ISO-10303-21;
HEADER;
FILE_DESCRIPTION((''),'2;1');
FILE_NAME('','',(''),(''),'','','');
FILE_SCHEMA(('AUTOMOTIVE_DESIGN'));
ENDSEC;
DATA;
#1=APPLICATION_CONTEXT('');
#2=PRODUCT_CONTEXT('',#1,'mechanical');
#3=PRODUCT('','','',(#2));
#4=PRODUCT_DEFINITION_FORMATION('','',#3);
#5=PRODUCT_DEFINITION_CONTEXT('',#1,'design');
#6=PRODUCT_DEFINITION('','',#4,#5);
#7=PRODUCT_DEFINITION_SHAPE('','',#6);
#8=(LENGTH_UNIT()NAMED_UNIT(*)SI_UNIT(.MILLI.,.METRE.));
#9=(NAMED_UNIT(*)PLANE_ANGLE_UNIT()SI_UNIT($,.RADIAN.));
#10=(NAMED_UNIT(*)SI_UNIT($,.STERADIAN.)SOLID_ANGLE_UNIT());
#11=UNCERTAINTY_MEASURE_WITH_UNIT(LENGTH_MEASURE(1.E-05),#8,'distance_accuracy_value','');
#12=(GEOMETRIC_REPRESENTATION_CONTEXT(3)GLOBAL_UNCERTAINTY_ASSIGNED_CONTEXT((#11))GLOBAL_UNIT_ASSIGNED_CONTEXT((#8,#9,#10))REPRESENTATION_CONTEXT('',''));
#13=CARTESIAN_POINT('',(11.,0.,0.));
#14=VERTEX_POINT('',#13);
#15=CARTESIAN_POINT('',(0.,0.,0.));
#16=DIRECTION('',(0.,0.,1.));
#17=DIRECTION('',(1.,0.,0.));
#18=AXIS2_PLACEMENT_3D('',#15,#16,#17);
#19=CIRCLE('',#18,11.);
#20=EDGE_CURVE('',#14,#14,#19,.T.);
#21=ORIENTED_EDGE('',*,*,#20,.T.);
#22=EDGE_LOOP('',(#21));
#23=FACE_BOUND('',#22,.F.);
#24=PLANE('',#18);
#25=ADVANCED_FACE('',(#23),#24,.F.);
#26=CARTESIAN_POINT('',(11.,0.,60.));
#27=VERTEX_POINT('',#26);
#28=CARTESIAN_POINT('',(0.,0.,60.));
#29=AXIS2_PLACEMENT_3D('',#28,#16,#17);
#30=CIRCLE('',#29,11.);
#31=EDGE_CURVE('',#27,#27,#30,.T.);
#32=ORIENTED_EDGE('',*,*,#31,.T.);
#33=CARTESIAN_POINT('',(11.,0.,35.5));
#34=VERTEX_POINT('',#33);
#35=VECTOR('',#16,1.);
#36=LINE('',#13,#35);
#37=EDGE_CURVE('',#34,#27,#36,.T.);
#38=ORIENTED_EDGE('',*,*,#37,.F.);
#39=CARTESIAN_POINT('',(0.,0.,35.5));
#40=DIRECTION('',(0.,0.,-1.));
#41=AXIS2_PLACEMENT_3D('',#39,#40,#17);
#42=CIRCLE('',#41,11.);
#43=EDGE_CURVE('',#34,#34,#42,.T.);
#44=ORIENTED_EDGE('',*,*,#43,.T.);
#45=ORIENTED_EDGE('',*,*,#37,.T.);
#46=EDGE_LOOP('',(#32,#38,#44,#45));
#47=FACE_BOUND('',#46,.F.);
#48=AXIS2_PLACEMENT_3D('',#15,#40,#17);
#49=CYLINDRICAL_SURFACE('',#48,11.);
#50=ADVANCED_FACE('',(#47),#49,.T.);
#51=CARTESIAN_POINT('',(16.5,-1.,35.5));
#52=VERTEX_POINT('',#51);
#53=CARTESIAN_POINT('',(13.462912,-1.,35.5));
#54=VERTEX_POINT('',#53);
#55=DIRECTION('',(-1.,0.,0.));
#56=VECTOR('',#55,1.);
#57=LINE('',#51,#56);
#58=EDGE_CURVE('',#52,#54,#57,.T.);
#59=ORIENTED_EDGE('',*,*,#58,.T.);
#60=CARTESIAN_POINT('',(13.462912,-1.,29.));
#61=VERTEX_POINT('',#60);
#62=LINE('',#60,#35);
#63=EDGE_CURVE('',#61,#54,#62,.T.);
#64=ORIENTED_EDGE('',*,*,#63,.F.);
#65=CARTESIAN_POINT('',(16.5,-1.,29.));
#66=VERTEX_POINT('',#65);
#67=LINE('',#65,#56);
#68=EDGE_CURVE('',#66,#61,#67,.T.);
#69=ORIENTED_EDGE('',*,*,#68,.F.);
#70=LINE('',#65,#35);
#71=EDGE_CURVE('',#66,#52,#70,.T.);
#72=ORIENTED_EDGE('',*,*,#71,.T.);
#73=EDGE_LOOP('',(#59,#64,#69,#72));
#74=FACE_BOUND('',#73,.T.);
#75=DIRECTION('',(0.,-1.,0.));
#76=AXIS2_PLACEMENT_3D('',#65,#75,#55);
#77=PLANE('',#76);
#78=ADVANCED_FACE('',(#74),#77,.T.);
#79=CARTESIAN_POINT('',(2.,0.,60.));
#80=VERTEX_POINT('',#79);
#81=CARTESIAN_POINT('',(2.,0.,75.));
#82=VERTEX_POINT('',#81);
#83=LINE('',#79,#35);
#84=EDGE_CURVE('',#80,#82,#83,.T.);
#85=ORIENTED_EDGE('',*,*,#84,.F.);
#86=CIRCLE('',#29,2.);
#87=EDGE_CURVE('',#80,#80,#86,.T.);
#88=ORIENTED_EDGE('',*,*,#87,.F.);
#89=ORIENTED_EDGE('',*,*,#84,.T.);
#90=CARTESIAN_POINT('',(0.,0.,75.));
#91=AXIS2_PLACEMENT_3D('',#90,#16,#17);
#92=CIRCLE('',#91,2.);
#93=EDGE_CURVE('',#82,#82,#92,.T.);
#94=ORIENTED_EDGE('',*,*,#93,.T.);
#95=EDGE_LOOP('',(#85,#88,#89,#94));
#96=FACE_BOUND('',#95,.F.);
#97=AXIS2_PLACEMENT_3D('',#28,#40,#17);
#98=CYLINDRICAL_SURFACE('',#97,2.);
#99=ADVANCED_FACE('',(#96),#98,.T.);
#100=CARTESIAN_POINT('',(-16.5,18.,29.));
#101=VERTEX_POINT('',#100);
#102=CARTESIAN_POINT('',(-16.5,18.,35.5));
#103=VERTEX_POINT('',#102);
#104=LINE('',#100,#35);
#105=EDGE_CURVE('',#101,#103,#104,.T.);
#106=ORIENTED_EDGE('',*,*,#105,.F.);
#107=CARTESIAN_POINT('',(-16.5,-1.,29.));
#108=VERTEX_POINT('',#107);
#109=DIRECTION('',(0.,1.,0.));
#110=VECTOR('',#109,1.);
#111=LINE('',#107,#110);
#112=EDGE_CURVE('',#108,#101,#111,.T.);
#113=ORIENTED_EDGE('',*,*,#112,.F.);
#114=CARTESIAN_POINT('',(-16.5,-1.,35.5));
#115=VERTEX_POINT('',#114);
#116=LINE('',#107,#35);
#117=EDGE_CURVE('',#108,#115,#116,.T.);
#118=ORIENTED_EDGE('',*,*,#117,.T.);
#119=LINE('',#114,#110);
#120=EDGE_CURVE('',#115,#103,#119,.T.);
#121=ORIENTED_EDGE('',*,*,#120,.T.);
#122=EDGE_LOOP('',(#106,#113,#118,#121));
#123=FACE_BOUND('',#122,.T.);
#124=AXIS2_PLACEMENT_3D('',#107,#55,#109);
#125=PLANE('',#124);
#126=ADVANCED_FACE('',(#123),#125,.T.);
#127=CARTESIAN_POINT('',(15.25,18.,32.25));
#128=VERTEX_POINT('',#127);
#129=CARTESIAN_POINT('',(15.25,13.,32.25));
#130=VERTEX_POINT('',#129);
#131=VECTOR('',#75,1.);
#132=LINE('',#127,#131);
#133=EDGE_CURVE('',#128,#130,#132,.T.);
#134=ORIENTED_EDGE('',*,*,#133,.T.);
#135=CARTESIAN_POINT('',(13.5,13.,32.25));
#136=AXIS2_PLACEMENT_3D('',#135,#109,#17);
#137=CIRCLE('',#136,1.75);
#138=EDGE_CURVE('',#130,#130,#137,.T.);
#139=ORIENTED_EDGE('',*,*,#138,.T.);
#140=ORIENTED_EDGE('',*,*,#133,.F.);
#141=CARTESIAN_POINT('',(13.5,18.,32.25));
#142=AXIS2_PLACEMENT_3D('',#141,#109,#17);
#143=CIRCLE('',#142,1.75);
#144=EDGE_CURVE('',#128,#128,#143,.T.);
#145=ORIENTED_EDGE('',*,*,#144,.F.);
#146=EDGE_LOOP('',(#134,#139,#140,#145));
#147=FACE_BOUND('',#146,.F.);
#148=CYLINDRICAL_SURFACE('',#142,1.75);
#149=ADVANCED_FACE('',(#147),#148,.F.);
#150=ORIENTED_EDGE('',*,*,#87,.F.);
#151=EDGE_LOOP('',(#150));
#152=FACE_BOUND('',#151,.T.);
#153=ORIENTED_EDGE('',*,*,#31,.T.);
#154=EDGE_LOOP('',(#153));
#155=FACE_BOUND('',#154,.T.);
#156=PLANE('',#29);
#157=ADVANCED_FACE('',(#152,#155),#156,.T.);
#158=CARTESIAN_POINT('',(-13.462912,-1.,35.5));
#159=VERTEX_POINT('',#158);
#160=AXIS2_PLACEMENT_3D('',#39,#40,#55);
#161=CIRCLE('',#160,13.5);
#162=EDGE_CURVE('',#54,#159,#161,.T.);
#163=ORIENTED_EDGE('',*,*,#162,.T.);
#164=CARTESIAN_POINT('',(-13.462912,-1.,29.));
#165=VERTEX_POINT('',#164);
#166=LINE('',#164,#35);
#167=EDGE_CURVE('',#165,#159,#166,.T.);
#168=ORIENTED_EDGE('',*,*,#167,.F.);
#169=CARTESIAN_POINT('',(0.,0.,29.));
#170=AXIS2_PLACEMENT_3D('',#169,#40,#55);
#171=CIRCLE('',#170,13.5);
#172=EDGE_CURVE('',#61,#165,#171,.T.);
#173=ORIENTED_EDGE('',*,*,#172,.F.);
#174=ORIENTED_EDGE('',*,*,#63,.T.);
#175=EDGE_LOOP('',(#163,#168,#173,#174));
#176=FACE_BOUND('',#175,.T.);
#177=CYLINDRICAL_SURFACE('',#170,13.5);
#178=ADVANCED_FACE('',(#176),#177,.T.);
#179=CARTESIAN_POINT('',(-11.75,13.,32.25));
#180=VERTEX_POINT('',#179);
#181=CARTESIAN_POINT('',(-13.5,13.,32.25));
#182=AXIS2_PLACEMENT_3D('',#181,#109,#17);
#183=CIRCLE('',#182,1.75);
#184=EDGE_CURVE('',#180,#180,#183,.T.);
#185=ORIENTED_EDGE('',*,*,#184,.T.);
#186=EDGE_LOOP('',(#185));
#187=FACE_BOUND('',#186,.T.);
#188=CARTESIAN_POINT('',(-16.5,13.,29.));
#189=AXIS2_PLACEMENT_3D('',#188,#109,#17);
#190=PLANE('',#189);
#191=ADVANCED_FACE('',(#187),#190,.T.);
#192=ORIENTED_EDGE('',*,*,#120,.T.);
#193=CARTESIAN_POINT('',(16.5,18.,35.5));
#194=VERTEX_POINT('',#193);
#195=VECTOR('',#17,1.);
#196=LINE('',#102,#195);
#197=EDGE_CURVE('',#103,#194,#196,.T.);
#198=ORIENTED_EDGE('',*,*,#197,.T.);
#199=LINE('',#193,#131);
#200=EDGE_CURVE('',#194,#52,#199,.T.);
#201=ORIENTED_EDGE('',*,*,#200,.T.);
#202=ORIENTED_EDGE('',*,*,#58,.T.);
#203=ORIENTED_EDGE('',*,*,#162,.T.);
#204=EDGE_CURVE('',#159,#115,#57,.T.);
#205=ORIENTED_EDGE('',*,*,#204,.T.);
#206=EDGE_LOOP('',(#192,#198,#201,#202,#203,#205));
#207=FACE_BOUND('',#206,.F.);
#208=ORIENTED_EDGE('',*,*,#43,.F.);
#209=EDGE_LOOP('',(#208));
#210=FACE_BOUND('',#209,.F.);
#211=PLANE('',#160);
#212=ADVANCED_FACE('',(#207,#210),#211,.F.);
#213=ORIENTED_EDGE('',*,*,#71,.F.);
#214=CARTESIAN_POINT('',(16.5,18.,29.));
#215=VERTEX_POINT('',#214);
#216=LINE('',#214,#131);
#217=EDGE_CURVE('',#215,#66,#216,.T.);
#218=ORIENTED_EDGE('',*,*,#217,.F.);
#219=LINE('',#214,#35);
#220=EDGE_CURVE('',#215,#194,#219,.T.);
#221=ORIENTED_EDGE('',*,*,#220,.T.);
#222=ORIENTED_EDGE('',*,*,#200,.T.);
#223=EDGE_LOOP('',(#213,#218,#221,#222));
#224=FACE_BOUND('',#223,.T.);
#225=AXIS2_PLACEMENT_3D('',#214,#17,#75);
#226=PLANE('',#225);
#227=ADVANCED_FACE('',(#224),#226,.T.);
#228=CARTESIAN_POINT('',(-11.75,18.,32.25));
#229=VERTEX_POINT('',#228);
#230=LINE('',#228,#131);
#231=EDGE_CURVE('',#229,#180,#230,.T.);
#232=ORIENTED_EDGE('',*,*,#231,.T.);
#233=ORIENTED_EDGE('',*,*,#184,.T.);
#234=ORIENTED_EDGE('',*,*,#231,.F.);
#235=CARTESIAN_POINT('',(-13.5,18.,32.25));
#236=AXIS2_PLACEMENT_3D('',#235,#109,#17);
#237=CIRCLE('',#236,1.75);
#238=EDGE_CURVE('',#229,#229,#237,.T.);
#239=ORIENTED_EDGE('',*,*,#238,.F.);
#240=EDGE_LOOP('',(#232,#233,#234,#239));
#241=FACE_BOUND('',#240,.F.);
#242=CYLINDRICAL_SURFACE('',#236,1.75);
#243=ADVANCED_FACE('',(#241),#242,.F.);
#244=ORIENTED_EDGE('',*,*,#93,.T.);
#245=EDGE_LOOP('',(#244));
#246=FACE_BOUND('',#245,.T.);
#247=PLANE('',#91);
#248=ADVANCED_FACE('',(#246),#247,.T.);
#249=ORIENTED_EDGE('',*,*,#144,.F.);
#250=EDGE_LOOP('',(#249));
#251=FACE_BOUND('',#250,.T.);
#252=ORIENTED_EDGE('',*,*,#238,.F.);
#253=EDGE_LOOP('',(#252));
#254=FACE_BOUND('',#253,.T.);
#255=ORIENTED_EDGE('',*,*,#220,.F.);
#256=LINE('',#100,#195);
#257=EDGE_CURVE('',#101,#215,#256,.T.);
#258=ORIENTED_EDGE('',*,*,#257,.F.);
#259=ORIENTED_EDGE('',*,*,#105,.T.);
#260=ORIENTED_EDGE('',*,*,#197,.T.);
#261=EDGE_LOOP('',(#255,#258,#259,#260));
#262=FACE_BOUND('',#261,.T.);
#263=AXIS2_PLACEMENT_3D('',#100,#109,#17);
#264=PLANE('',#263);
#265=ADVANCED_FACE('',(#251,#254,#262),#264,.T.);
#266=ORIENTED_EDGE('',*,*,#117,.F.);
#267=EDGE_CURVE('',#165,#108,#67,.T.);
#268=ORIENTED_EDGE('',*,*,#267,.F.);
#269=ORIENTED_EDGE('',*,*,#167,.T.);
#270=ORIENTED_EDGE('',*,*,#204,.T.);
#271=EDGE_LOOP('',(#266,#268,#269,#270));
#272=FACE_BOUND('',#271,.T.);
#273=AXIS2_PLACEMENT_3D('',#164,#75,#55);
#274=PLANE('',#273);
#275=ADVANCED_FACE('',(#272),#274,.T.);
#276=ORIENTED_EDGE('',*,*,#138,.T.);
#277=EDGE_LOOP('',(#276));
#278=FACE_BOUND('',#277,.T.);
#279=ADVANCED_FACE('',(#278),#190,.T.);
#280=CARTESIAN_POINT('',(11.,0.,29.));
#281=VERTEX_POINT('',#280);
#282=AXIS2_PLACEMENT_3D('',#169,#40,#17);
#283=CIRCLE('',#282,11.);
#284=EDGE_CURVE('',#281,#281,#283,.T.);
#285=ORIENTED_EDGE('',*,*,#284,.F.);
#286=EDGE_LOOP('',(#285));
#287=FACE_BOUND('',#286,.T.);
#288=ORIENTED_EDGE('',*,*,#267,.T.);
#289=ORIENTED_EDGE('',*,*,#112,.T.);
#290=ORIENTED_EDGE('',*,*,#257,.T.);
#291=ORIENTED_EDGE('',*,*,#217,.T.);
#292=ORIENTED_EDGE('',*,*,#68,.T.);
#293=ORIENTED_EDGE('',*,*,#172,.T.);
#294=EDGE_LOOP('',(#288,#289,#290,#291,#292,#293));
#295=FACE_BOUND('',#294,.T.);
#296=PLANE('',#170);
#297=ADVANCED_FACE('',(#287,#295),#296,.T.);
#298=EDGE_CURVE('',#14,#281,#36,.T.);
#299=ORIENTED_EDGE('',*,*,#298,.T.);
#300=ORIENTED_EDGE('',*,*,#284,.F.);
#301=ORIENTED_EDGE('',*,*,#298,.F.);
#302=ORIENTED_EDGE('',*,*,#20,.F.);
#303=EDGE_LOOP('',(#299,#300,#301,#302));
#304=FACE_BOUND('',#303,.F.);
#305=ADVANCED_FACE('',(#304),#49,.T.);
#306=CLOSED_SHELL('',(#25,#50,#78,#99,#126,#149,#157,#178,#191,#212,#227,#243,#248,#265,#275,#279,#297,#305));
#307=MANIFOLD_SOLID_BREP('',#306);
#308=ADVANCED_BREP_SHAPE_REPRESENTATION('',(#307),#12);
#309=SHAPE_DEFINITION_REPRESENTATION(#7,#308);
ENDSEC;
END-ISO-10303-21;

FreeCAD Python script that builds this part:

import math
import FreeCAD as App
import Part
import Sketcher
from FreeCAD import Vector

doc = App.newDocument("Part")
body = doc.addObject("PartDesign::Body", "Body")

# Sketch on XY plane
sketch1 = body.newObject("Sketcher::SketchObject", "Sketch")
sketch1.AttachmentSupport = (doc.getObject("XY_Plane"), [""])
sketch1.MapMode = "FlatFace"
sketch1.addGeometry(Part.Circle(Vector(0, 0, 0), Vector(0, 0, 1), 11), False)
sketch1.addConstraint(Sketcher.Constraint("Coincident", 0, 3, -1, 1))
sketch1.addConstraint(Sketcher.Constraint("Diameter", 0, 22.0))
pad1 = body.newObject("PartDesign::Pad", "Pad")
pad1.Profile = sketch1
pad1.Length = 60

# Sketch on XY plane
sketch2 = body.newObject("Sketcher::SketchObject", "Sketch001")
sketch2.AttachmentSupport = (doc.getObject("XY_Plane"), [""])
sketch2.MapMode = "FlatFace"
sketch2.AttachmentOffset = App.Placement(Vector(0, 0, 60), App.Rotation())
sketch2.addGeometry(Part.Circle(Vector(0, 0, 0), Vector(0, 0, 1), 2), False)
sketch2.addConstraint(Sketcher.Constraint("Coincident", 0, 3, -1, 1))
sketch2.addConstraint(Sketcher.Constraint("Diameter", 0, 4.0))
pad2 = body.newObject("PartDesign::Pad", "Pad001")
pad2.Profile = sketch2
pad2.Length = 15

# Sketch on XY plane
sketch3 = body.newObject("Sketcher::SketchObject", "Sketch002")
sketch3.AttachmentSupport = (doc.getObject("XY_Plane"), [""])
sketch3.MapMode = "FlatFace"
sketch3.AttachmentOffset = App.Placement(Vector(0, 0, 29), App.Rotation())
sketch3.addGeometry(Part.LineSegment(Vector(-13.5, -1, 0), Vector(-16.5, -1, 0)), False)
sketch3.addGeometry(Part.LineSegment(Vector(-16.5, -1, 0), Vector(-16.5, 18, 0)), False)
sketch3.addGeometry(Part.LineSegment(Vector(-16.5, 18, 0), Vector(16.5, 18, 0)), False)
sketch3.addGeometry(Part.LineSegment(Vector(16.5, 18, 0), Vector(16.5, -1, 0)), False)
sketch3.addGeometry(Part.LineSegment(Vector(16.5, -1, 0), Vector(13.5, -1, 0)), False)
sketch3.addGeometry(Part.ArcOfCircle(Part.Circle(Vector(0, 0, 0), Vector(0, 0, 1), 13.5), math.radians(-176), math.radians(-4)), False)
sketch3.addConstraint(Sketcher.Constraint("Coincident", 0, 2, 1, 1))
sketch3.addConstraint(Sketcher.Constraint("Coincident", 1, 2, 2, 1))
sketch3.addConstraint(Sketcher.Constraint("Coincident", 2, 2, 3, 1))
sketch3.addConstraint(Sketcher.Constraint("Coincident", 3, 2, 4, 1))
sketch3.addConstraint(Sketcher.Constraint("Coincident", 4, 2, 5, 2))
sketch3.addConstraint(Sketcher.Constraint("Coincident", 5, 1, 0, 1))
sketch3.addConstraint(Sketcher.Constraint("Horizontal", 0))
sketch3.addConstraint(Sketcher.Constraint("Vertical", 1))
sketch3.addConstraint(Sketcher.Constraint("Horizontal", 2))
sketch3.addConstraint(Sketcher.Constraint("Vertical", 3))
sketch3.addConstraint(Sketcher.Constraint("Horizontal", 4))
sketch3.addConstraint(Sketcher.Constraint("Coincident", 5, 3, -1, 1))
sketch3.addConstraint(Sketcher.Constraint("Symmetric", 0, 2, 3, 2, -2))
sketch3.addConstraint(Sketcher.Constraint("Radius", 5, 13.5))
sketch3.addConstraint(Sketcher.Constraint("DistanceX", 2, 1, 2, 2, 33.0))
sketch3.addConstraint(Sketcher.Constraint("DistanceY", 1, 1, 1, 2, 19.0))
sketch3.addConstraint(Sketcher.Constraint("DistanceY", 0, 2, -1, 1, 1.0))
pad3 = body.newObject("PartDesign::Pad", "Pad002")
pad3.Profile = sketch3
pad3.Length = 6.5

# Sketch on XZ plane
sketch4 = body.newObject("Sketcher::SketchObject", "Sketch003")
sketch4.AttachmentSupport = (doc.getObject("XZ_Plane"), [""])
sketch4.MapMode = "FlatFace"
sketch4.AttachmentOffset = App.Placement(Vector(0, 0, -18), App.Rotation())
sketch4.addGeometry(Part.Circle(Vector(-13.5, 32.2, 0), Vector(0, 0, 1), 1.8), False)
sketch4.addGeometry(Part.Circle(Vector(13.5, 32.2, 0), Vector(0, 0, 1), 1.8), False)
sketch4.addConstraint(Sketcher.Constraint("Equal", 0, 1))
sketch4.addConstraint(Sketcher.Constraint("Symmetric", 0, 3, 1, 3, -2))
sketch4.addConstraint(Sketcher.Constraint("Diameter", 0, 3.5))
sketch4.addConstraint(Sketcher.Constraint("DistanceX", 0, 3, 1, 3, 27.0))
sketch4.addConstraint(Sketcher.Constraint("DistanceY", -1, 1, 0, 3, 32.25))
pocket1 = body.newObject("PartDesign::Pocket", "Pocket")
pocket1.Profile = sketch4
pocket1.Length = 5
pocket1.Reversed = True

doc.recompute()
